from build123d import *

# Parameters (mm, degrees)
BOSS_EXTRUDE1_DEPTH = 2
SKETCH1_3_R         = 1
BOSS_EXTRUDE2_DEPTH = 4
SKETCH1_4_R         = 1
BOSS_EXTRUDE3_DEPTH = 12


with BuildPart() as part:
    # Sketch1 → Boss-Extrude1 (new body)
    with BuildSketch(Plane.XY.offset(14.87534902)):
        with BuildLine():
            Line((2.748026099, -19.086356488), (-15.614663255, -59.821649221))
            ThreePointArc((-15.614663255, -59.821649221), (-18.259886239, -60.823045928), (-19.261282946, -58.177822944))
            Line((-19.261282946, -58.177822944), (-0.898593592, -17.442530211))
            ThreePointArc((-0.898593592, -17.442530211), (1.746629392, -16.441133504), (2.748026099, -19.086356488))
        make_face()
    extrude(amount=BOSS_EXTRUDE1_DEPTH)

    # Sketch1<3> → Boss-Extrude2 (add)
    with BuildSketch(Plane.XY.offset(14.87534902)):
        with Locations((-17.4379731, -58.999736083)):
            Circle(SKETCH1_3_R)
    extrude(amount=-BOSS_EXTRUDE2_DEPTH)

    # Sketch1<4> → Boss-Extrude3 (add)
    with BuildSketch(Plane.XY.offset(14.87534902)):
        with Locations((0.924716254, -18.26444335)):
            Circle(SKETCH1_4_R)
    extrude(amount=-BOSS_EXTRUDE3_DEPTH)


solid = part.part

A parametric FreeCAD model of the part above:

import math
import FreeCAD as App
import Part
import Sketcher
from FreeCAD import Vector

doc = App.newDocument("Part")
body = doc.addObject("PartDesign::Body", "Body")

sketch1 = body.newObject("Sketcher::SketchObject", "Sketch")
sketch1.AttachmentSupport = (doc.getObject("XY_Plane"), [""])
sketch1.MapMode = "FlatFace"
sketch1.AttachmentOffset = App.Placement(Vector(0, 0, 14.875349), App.Rotation())
sketch1.addGeometry([
    Part.LineSegment(Vector(-15.6, -59.8, 0), Vector(2.7, -19.1, 0)),
    Part.ArcOfCircle(Part.Circle(Vector(0.9, -18.3, 0), Vector(0, 0, 1), 2), math.radians(-24), math.radians(156)),
    Part.LineSegment(Vector(-0.9, -17.4, 0), Vector(-19.3, -58.2, 0)),
    Part.ArcOfCircle(Part.Circle(Vector(-17.4, -59, 0), Vector(0, 0, 1), 2), math.radians(156), math.radians(336)),
], False)
sketch1.addConstraint([
    Sketcher.Constraint("Tangent", 0, 2, 1, 1),
    Sketcher.Constraint("Tangent", 1, 2, 2, 1),
    Sketcher.Constraint("Tangent", 2, 2, 3, 1),
    Sketcher.Constraint("Tangent", 3, 2, 0, 1),
    Sketcher.Constraint("Equal", 1, 3),
    Sketcher.Constraint("Radius", 1, 2.0),
    Sketcher.Constraint("DistanceX", 3, 3, 0, 2, 20.185999),
    Sketcher.Constraint("DistanceY", 1, 2, -1, 1, 17.44253),
    Sketcher.Constraint("DistanceY", 3, 2, -1, 1, 59.821649),
    Sketcher.Constraint("DistanceX", -1, 1, 1, 3, 0.924716),
])
pad1 = body.newObject("PartDesign::Pad", "Pad")
pad1.Profile = sketch1
pad1.Length = 2

sketch2 = body.newObject("Sketcher::SketchObject", "Sketch001")
sketch2.AttachmentSupport = (doc.getObject("XY_Plane"), [""])
sketch2.MapMode = "FlatFace"
sketch2.AttachmentOffset = App.Placement(Vector(0, 0, 14.875349), App.Rotation())
sketch2.addGeometry(Part.Circle(Vector(-17.4, -59, 0), Vector(0, 0, 1), 1), False)
sketch2.addConstraint([
    Sketcher.Constraint("Diameter", 0, 2.0),
    Sketcher.Constraint("DistanceX", 0, 3, -1, 1, 17.437973),
    Sketcher.Constraint("DistanceY", 0, 3, -1, 1, 58.999736),
])
pad2 = body.newObject("PartDesign::Pad", "Pad001")
pad2.Profile = sketch2
pad2.Length = 4
pad2.Reversed = True

sketch3 = body.newObject("Sketcher::SketchObject", "Sketch002")
sketch3.AttachmentSupport = (doc.getObject("XY_Plane"), [""])
sketch3.MapMode = "FlatFace"
sketch3.AttachmentOffset = App.Placement(Vector(0, 0, 14.875349), App.Rotation())
sketch3.addGeometry(Part.Circle(Vector(0.9, -18.3, 0), Vector(0, 0, 1), 1), False)
sketch3.addConstraint([
    Sketcher.Constraint("Diameter", 0, 2.0),
    Sketcher.Constraint("DistanceX", -1, 1, 0, 3, 0.924716),
    Sketcher.Constraint("DistanceY", 0, 3, -1, 1, 18.264443),
])
pad3 = body.newObject("PartDesign::Pad", "Pad002")
pad3.Profile = sketch3
pad3.Length = 12
pad3.Reversed = True

doc.recompute()
